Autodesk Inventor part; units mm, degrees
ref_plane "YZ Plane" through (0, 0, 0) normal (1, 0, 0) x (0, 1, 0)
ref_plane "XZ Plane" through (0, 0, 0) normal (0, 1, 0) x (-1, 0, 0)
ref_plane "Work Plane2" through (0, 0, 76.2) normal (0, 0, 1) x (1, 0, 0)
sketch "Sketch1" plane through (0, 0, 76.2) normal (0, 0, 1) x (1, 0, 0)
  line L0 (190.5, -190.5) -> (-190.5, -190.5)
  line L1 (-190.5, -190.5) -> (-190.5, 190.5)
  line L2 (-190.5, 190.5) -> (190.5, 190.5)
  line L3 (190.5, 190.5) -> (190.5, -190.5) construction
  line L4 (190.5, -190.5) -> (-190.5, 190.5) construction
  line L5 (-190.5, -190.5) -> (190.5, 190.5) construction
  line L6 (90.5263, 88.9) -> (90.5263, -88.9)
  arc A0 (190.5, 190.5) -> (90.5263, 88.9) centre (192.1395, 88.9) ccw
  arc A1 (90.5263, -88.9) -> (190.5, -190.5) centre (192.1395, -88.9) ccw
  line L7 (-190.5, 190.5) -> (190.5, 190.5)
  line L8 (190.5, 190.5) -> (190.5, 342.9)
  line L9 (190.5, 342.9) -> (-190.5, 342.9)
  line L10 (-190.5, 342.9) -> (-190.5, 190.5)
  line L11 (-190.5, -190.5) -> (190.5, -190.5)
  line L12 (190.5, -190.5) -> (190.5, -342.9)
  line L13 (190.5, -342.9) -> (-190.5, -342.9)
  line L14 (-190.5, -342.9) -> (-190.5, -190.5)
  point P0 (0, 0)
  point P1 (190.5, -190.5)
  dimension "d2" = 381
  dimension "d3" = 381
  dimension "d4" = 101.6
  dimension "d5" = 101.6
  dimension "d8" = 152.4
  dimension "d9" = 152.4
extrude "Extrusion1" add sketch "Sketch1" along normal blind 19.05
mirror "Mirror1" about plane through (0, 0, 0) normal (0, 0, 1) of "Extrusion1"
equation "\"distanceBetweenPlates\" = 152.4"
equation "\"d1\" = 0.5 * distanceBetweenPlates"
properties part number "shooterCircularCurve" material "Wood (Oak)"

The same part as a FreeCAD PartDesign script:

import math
import FreeCAD as App
import Part
import Sketcher

V = App.Vector
Q = App.Units.Quantity

doc = App.newDocument("Part")
body = doc.addObject("PartDesign::Body", "Body")
body.AllowCompound = True

# Sketch on XY plane
sketch1 = doc.addObject("Sketcher::SketchObject", "Sketch")
body.addObject(sketch1)
sketch1.AttachmentSupport = (doc.XY_Plane, [""])
sketch1.MapMode = "FlatFace"
sketch1.AttachmentOffset = App.Placement(V(0, 0, 3 * 25.4), App.Rotation())
sketch1.addGeometry(Part.LineSegment(V(190, -343, 0), V(190, -190, 0)), False)
sketch1.addGeometry(Part.ArcOfCircle(Part.Circle(V(192, -89, 0), V(0, 0, 1), 102), math.radians(180), math.radians(269)), False)
sketch1.addGeometry(Part.LineSegment(V(91, -89, 0), V(91, 89, 0)), False)
sketch1.addGeometry(Part.ArcOfCircle(Part.Circle(V(192, 89, 0), V(0, 0, 1), 102), math.radians(91), math.radians(180)), False)
sketch1.addGeometry(Part.LineSegment(V(190, 190, 0), V(190, 343, 0)), False)
sketch1.addGeometry(Part.LineSegment(V(190, 343, 0), V(-190, 343, 0)), False)
sketch1.addGeometry(Part.LineSegment(V(-190, 343, 0), V(-190, -343, 0)), False)
sketch1.addGeometry(Part.LineSegment(V(-190, -343, 0), V(190, -343, 0)), False)
sketch1.addConstraint(Sketcher.Constraint("Coincident", 0, 2, 1, 2))
sketch1.addConstraint(Sketcher.Constraint("Tangent", 1, 1, 2, 1))
sketch1.addConstraint(Sketcher.Constraint("Tangent", 2, 2, 3, 2))
sketch1.addConstraint(Sketcher.Constraint("Coincident", 3, 1, 4, 1))
sketch1.addConstraint(Sketcher.Constraint("Coincident", 4, 2, 5, 1))
sketch1.addConstraint(Sketcher.Constraint("Coincident", 5, 2, 6, 1))
sketch1.addConstraint(Sketcher.Constraint("Coincident", 6, 2, 7, 1))
sketch1.addConstraint(Sketcher.Constraint("Coincident", 7, 2, 0, 1))
sketch1.addConstraint(Sketcher.Constraint("Vertical", 0))
sketch1.addConstraint(Sketcher.Constraint("Vertical", 2))
sketch1.addConstraint(Sketcher.Constraint("Vertical", 4))
sketch1.addConstraint(Sketcher.Constraint("Horizontal", 5))
sketch1.addConstraint(Sketcher.Constraint("Vertical", 6))
sketch1.addConstraint(Sketcher.Constraint("Horizontal", 7))
sketch1.addConstraint(Sketcher.Constraint("Equal", 1, 3))
sketch1.addConstraint(Sketcher.Constraint("Symmetric", 4, 2, 6, 2, -1, 1))
sketch1.addConstraint(Sketcher.Constraint("Symmetric", 0, 2, 3, 1, -1))
sketch1.addConstraint(Sketcher.Constraint("DistanceX", 5, 2, 5, 1, Q("15 in")))
sketch1.addConstraint(Sketcher.Constraint("DistanceY", 0, 1, 0, 2, Q("6 in")))
sketch1.addConstraint(Sketcher.Constraint("DistanceY", 0, 2, 1, 3, Q("4 in")))
sketch1.addConstraint(Sketcher.Constraint("DistanceY", 0, 2, 3, 1, Q("15 in")))
sketch1.addConstraint(Sketcher.Constraint("Radius", 1, 101.6132))
pad1 = doc.addObject("PartDesign::Pad", "Pad")
body.addObject(pad1)
pad1.Profile = sketch1
pad1.Length = Q("0.75 in")
doc.recompute()

mirrored = doc.addObject("PartDesign::Mirrored", "Mirrored")
body.addObject(mirrored)
mirrored.Originals = [pad1]
mirrored.MirrorPlane = (doc.XY_Plane, [""])
body.Tip = mirrored

doc.recompute()
